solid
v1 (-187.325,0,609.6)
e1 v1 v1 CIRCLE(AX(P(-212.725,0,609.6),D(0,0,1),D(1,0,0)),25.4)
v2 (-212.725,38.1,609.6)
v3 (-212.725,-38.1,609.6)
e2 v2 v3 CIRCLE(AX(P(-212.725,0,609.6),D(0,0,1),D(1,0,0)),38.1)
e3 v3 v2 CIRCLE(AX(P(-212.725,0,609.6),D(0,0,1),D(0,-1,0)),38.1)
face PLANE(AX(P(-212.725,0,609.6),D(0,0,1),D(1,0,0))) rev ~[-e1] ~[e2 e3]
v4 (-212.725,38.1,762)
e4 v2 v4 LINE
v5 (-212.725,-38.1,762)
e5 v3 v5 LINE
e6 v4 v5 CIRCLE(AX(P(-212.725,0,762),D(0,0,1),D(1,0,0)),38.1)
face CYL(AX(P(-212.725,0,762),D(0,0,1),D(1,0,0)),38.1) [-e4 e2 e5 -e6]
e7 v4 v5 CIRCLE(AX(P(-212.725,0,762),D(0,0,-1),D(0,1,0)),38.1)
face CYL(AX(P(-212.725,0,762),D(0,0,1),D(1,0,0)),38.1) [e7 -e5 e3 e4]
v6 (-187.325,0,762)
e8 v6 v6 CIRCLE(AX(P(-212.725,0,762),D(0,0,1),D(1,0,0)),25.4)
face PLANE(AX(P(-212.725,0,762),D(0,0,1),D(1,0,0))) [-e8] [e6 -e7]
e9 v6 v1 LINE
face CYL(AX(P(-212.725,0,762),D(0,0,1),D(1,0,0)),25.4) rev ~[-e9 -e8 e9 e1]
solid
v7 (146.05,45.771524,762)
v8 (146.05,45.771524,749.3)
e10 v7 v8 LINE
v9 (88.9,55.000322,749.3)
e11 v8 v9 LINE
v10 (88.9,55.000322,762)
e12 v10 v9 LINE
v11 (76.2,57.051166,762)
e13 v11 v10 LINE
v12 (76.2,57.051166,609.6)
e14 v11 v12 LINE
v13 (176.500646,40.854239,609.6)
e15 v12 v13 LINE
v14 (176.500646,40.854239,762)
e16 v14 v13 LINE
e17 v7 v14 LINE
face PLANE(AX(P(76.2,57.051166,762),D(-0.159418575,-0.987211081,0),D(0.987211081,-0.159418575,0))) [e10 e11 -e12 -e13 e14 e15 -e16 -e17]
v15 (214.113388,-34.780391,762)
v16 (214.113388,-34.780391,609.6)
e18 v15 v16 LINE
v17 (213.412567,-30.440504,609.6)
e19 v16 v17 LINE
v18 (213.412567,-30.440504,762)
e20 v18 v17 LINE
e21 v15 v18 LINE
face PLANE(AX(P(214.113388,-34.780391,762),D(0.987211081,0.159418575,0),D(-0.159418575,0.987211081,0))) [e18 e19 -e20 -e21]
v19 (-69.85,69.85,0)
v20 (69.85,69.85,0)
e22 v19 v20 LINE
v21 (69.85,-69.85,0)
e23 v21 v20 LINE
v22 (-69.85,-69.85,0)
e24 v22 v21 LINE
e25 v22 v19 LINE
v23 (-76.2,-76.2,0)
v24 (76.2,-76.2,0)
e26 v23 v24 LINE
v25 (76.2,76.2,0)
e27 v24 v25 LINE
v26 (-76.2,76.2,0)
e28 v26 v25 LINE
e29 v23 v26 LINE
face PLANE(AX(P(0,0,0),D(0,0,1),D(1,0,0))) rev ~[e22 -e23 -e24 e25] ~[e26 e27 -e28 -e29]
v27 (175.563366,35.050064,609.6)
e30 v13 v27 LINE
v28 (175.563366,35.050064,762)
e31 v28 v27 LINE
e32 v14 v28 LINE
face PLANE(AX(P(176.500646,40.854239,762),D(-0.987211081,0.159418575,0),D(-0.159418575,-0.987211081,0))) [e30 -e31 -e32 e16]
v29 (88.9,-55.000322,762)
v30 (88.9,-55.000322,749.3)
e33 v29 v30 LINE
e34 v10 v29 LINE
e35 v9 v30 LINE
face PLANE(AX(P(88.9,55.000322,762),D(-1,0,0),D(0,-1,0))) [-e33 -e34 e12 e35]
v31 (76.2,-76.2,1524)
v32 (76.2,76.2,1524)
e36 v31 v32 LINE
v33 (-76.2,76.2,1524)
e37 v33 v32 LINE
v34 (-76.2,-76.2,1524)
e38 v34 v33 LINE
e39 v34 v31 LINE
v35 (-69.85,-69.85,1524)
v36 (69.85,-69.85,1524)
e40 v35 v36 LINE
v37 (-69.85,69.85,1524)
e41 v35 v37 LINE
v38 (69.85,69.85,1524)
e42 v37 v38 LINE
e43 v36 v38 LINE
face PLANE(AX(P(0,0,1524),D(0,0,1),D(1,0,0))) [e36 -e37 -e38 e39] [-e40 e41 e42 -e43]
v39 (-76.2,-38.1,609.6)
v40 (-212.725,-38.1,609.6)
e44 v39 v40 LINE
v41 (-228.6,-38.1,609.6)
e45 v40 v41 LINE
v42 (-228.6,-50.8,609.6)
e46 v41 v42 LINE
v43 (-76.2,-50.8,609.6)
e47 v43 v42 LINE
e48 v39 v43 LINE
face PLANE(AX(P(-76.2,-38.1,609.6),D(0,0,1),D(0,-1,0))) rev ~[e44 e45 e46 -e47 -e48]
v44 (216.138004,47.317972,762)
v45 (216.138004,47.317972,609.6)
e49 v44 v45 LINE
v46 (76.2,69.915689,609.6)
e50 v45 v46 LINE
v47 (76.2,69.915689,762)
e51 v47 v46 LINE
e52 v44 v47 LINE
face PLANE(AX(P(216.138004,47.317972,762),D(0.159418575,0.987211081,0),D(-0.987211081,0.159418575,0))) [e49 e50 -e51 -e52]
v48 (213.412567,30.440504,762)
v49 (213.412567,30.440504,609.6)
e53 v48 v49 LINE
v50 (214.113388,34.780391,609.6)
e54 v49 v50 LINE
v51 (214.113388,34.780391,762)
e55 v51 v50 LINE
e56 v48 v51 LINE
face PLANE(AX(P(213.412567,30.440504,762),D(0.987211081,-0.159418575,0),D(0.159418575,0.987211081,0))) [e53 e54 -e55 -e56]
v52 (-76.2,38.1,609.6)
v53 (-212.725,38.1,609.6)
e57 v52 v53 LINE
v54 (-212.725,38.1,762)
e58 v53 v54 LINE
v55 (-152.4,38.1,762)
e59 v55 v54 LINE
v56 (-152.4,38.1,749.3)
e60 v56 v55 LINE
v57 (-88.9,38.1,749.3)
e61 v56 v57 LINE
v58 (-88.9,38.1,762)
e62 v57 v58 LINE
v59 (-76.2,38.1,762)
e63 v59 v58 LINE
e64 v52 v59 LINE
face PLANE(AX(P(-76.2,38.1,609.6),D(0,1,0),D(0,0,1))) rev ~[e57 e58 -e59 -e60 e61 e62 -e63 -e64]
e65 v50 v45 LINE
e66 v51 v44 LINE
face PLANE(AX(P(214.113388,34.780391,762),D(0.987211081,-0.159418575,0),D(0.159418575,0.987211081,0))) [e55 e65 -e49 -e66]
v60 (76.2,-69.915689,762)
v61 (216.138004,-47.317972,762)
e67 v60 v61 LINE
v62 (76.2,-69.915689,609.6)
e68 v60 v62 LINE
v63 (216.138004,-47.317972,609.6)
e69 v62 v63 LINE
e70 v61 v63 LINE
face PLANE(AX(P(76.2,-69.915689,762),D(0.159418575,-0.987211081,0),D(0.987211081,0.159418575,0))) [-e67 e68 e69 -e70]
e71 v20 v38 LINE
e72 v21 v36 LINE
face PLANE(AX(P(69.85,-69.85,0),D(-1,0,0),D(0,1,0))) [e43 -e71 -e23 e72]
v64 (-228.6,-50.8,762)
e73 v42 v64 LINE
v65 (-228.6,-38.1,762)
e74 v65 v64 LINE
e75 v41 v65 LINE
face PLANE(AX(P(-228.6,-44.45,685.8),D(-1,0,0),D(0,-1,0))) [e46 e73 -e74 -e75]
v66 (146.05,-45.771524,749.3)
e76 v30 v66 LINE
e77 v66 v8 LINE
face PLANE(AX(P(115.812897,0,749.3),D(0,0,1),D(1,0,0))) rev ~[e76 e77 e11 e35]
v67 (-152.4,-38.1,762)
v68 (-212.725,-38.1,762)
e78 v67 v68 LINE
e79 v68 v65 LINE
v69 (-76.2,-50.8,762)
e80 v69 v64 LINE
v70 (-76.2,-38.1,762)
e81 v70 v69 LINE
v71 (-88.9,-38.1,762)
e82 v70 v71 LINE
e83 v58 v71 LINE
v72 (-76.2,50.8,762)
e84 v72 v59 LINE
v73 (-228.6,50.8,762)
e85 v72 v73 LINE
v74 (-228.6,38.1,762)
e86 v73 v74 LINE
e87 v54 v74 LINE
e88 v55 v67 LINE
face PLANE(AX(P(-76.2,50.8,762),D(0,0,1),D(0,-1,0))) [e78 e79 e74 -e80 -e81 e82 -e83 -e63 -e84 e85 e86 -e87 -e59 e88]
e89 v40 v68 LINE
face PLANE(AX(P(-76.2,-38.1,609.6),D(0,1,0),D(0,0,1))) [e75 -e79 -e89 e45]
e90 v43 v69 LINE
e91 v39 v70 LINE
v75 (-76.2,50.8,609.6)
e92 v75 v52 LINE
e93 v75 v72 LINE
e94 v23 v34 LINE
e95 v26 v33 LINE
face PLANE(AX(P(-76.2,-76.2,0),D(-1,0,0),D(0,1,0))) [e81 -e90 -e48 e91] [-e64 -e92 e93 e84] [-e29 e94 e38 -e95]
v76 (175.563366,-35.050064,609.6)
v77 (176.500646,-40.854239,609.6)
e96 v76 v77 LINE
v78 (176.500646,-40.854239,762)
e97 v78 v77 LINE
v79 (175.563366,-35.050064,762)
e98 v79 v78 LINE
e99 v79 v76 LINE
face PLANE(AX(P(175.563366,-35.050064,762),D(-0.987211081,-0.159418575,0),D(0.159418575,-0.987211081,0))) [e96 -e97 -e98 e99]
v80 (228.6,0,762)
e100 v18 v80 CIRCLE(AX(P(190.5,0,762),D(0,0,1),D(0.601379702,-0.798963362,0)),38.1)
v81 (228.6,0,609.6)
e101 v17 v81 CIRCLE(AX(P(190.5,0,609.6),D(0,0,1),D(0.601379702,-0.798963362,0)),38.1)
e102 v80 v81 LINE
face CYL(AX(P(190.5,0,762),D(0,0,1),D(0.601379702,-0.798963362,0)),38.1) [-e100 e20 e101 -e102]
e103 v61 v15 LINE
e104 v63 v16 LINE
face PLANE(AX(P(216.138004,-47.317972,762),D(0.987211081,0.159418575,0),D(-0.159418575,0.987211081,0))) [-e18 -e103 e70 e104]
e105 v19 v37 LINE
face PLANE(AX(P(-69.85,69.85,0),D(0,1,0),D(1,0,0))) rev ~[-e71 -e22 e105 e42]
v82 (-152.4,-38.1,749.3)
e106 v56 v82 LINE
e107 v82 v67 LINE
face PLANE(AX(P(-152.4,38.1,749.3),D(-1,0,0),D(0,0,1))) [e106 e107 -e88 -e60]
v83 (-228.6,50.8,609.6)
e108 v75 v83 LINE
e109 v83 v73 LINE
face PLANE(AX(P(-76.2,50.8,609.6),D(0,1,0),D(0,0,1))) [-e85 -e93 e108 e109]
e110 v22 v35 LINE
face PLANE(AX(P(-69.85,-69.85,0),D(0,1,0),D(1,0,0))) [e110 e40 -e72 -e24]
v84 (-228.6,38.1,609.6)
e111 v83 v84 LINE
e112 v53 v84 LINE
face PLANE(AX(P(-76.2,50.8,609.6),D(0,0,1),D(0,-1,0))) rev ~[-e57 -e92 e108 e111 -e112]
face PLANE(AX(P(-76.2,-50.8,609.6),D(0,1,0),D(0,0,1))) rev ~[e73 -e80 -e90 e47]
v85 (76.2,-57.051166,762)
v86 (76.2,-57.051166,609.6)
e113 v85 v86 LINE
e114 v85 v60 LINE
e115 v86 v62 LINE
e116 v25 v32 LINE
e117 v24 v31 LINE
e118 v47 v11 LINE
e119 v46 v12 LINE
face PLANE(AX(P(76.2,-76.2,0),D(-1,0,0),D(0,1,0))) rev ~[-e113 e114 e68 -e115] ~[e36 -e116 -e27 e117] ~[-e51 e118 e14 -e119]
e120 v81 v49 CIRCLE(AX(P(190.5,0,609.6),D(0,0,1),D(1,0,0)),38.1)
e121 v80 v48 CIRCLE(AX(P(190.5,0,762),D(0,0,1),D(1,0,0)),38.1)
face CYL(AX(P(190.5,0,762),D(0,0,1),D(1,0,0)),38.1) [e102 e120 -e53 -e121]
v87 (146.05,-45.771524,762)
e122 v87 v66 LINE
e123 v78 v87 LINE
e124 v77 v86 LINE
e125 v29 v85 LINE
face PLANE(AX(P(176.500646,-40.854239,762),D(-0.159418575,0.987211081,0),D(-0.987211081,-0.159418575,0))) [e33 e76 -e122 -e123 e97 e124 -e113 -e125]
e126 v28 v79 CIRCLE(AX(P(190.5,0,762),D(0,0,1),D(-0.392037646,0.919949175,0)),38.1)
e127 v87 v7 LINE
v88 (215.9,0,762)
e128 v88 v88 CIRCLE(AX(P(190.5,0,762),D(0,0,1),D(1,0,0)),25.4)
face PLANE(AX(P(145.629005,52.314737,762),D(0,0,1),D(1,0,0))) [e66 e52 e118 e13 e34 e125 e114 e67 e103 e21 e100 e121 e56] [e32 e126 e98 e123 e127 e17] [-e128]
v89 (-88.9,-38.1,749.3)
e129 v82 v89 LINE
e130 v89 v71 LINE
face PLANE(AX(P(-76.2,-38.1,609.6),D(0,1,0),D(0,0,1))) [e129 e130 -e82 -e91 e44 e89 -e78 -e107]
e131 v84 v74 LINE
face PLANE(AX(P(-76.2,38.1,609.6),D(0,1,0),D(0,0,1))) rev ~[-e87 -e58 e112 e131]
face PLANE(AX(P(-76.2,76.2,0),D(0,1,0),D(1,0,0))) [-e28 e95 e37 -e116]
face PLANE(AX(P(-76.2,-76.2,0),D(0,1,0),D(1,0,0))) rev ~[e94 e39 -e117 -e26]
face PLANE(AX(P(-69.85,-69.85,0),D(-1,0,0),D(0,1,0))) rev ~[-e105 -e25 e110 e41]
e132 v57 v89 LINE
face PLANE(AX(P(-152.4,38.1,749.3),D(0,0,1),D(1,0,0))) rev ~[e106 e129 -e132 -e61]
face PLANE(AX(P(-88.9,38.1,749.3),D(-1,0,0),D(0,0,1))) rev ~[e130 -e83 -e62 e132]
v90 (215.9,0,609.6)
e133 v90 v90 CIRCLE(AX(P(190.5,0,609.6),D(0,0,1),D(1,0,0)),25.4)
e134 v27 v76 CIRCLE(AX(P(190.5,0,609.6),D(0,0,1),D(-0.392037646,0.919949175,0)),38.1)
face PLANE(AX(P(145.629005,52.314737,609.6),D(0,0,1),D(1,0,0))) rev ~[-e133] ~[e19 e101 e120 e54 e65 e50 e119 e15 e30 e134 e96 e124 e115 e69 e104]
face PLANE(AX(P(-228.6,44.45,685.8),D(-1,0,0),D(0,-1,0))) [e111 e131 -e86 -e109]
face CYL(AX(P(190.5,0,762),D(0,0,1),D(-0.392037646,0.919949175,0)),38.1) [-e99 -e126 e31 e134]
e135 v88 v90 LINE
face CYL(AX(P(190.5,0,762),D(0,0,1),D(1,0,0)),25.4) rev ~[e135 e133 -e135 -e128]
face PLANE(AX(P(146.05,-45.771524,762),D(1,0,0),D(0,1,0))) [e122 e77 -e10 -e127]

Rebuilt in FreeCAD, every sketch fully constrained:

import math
import FreeCAD as App
import Part
import Sketcher
Q = App.Units.Quantity

doc = App.newDocument("Part")
body = doc.addObject("PartDesign::Body", "Body")
body.AllowCompound = True

sketch1 = doc.addObject("Sketcher::SketchObject", "Sketch")
body.addObject(sketch1)
sketch1.AttachmentSupport = (doc.XY_Plane, [""])
sketch1.MapMode = "FlatFace"
sketch1.addGeometry([
    Part.LineSegment(App.Vector(-76, 76, 0), App.Vector(-76, -76, 0)),
    Part.LineSegment(App.Vector(-76, -76, 0), App.Vector(76, -76, 0)),
    Part.LineSegment(App.Vector(76, -76, 0), App.Vector(76, 76, 0)),
    Part.LineSegment(App.Vector(76, 76, 0), App.Vector(-76, 76, 0)),
    Part.LineSegment(App.Vector(70, -70, 0), App.Vector(-70, -70, 0)),
    Part.LineSegment(App.Vector(-70, -70, 0), App.Vector(-70, 70, 0)),
    Part.LineSegment(App.Vector(-70, 70, 0), App.Vector(70, 70, 0)),
    Part.LineSegment(App.Vector(70, 70, 0), App.Vector(70, -70, 0)),
], False)
sketch1.addConstraint([
    Sketcher.Constraint("Coincident", 0, 2, 1, 1),
    Sketcher.Constraint("Coincident", 1, 2, 2, 1),
    Sketcher.Constraint("Coincident", 2, 2, 3, 1),
    Sketcher.Constraint("Coincident", 3, 2, 0, 1),
    Sketcher.Constraint("Coincident", 4, 2, 5, 1),
    Sketcher.Constraint("Coincident", 5, 2, 6, 1),
    Sketcher.Constraint("Coincident", 6, 2, 7, 1),
    Sketcher.Constraint("Coincident", 7, 2, 4, 1),
    Sketcher.Constraint("Vertical", 0),
    Sketcher.Constraint("Horizontal", 1),
    Sketcher.Constraint("Vertical", 2),
    Sketcher.Constraint("Horizontal", 3),
    Sketcher.Constraint("Horizontal", 4),
    Sketcher.Constraint("Vertical", 5),
    Sketcher.Constraint("Horizontal", 6),
    Sketcher.Constraint("Vertical", 7),
    Sketcher.Constraint("Symmetric", 0, 2, 2, 2, -1, 1),
    Sketcher.Constraint("Symmetric", 4, 2, 6, 2, -1, 1),
    Sketcher.Constraint("Equal", 3, 0),
    Sketcher.Constraint("Equal", 6, 5),
    Sketcher.Constraint("DistanceX", 1, 1, 1, 2, Q("6 in")),
    Sketcher.Constraint("DistanceX", 4, 2, 4, 1, Q("5.5 in")),
])
pad1 = doc.addObject("PartDesign::Pad", "Pad")
body.addObject(pad1)
pad1.Profile = sketch1
pad1.Length = Q("60 in")

sketch2 = doc.addObject("Sketcher::SketchObject", "Sketch001")
body.addObject(sketch2)
sketch2.AttachmentSupport = (doc.YZ_Plane, [""])
sketch2.MapMode = "FlatFace"
sketch2.AttachmentOffset = App.Placement(App.Vector(0, 0, -3 * 25.4), App.Rotation())
sketch2.addGeometry([
    Part.LineSegment(App.Vector(51, 762, 0), App.Vector(51, 610, 0)),
    Part.LineSegment(App.Vector(51, 610, 0), App.Vector(38, 610, 0)),
    Part.LineSegment(App.Vector(38, 610, 0), App.Vector(38, 762, 0)),
    Part.LineSegment(App.Vector(38, 762, 0), App.Vector(51, 762, 0)),
    Part.LineSegment(App.Vector(-38, 762, 0), App.Vector(-38, 610, 0)),
    Part.LineSegment(App.Vector(-38, 610, 0), App.Vector(-51, 610, 0)),
    Part.LineSegment(App.Vector(-51, 610, 0), App.Vector(-51, 762, 0)),
    Part.LineSegment(App.Vector(-51, 762, 0), App.Vector(-38, 762, 0)),
], False)
sketch2.addConstraint([
    Sketcher.Constraint("Coincident", 0, 2, 1, 1),
    Sketcher.Constraint("Coincident", 1, 2, 2, 1),
    Sketcher.Constraint("Coincident", 2, 2, 3, 1),
    Sketcher.Constraint("Coincident", 3, 2, 0, 1),
    Sketcher.Constraint("Coincident", 4, 2, 5, 1),
    Sketcher.Constraint("Coincident", 5, 2, 6, 1),
    Sketcher.Constraint("Coincident", 6, 2, 7, 1),
    Sketcher.Constraint("Coincident", 7, 2, 4, 1),
    Sketcher.Constraint("Vertical", 0),
    Sketcher.Constraint("Horizontal", 1),
    Sketcher.Constraint("Vertical", 2),
    Sketcher.Constraint("Horizontal", 3),
    Sketcher.Constraint("Vertical", 4),
    Sketcher.Constraint("Horizontal", 5),
    Sketcher.Constraint("Vertical", 6),
    Sketcher.Constraint("Horizontal", 7),
    Sketcher.Constraint("Symmetric", 1, 2, 4, 2, -2),
    Sketcher.Constraint("Symmetric", 3, 2, 6, 2, -2),
    Sketcher.Constraint("DistanceY", 0, 2, 0, 1, Q("6 in")),
    Sketcher.Constraint("DistanceX", 1, 2, 1, 1, Q("0.5 in")),
    Sketcher.Constraint("DistanceX", -1, 1, 0, 2, Q("2 in")),
    Sketcher.Constraint("DistanceY", -1, 1, 0, 2, Q("24 in")),
])
pad2 = doc.addObject("PartDesign::Pad", "Pad001")
body.addObject(pad2)
pad2.Profile = sketch2
pad2.Length = Q("6 in")
pad2.Reversed = True

sketch3 = doc.addObject("Sketcher::SketchObject", "Sketch002")
body.addObject(sketch3)
sketch3.AttachmentSupport = (doc.XY_Plane, [""])
sketch3.MapMode = "FlatFace"
sketch3.AttachmentOffset = App.Placement(App.Vector(0, 0, 30 * 25.4), App.Rotation())
sketch3.addGeometry([
    Part.Circle(App.Vector(-213, 0, 0), App.Vector(0, 0, 1), 38),
    Part.Circle(App.Vector(-213, 0, 0), App.Vector(0, 0, 1), 25),
], False)
sketch3.addConstraint([
    Sketcher.Constraint("Coincident", 1, 3, 0, 3),
    Sketcher.Constraint("PointOnObject", 0, 3, -1),
    Sketcher.Constraint("Diameter", 0, Q("3 in")),
    Sketcher.Constraint("Diameter", 1, Q("2 in")),
    Sketcher.Constraint("DistanceX", 0, 3, -1, 1, Q("8.375 in")),
])
pad3 = doc.addObject("PartDesign::Pad", "Pad002")
body.addObject(pad3)
pad3.Profile = sketch3
pad3.Length = Q("6 in")
pad3.Reversed = True

sketch4 = doc.addObject("Sketcher::SketchObject", "Sketch003")
body.addObject(sketch4)
sketch4.AttachmentSupport = (doc.XZ_Plane, [""])
sketch4.MapMode = "FlatFace"
sketch4.AttachmentOffset = App.Placement(App.Vector(0, 0, -1.5 * 25.4), App.Rotation())
sketch4.addGeometry([
    Part.LineSegment(App.Vector(-152, 762, 0), App.Vector(-152, 749, 0)),
    Part.LineSegment(App.Vector(-152, 749, 0), App.Vector(-89, 749, 0)),
    Part.LineSegment(App.Vector(-89, 749, 0), App.Vector(-89, 762, 0)),
    Part.LineSegment(App.Vector(-89, 762, 0), App.Vector(-152, 762, 0)),
], False)
sketch4.addConstraint([
    Sketcher.Constraint("Coincident", 0, 2, 1, 1),
    Sketcher.Constraint("Coincident", 1, 2, 2, 1),
    Sketcher.Constraint("Coincident", 2, 2, 3, 1),
    Sketcher.Constraint("Coincident", 3, 2, 0, 1),
    Sketcher.Constraint("Vertical", 0),
    Sketcher.Constraint("Horizontal", 1),
    Sketcher.Constraint("Vertical", 2),
    Sketcher.Constraint("Horizontal", 3),
    Sketcher.Constraint("DistanceX", 1, 1, 1, 2, Q("2.5 in")),
    Sketcher.Constraint("DistanceY", 0, 2, 0, 1, Q("0.5 in")),
    Sketcher.Constraint("DistanceX", 0, 2, -1, 1, Q("6 in")),
    Sketcher.Constraint("DistanceY", -1, 1, 2, 2, Q("30 in")),
])
pad4 = doc.addObject("PartDesign::Pad", "Pad003")
body.addObject(pad4)
pad4.Profile = sketch4
pad4.Type = "UpToLast"

sketch5 = doc.addObject("Sketcher::SketchObject", "Sketch004")
body.addObject(sketch5)
sketch5.AttachmentSupport = (doc.XY_Plane, [""])
sketch5.MapMode = "FlatFace"
sketch5.AttachmentOffset = App.Placement(App.Vector(0, 0, 30 * 25.4), App.Rotation())
sketch5.addGeometry([
    Part.LineSegment(App.Vector(76.2, 69.9, 0), App.Vector(76.2, 57.1, 0)),
    Part.LineSegment(App.Vector(76.2, 57.1, 0), App.Vector(176.5, 40.9, 0)),
    Part.LineSegment(App.Vector(176.5, 40.9, 0), App.Vector(175.6, 35.1, 0)),
    Part.ArcOfCircle(Part.Circle(App.Vector(190.5, 0, 0), App.Vector(0, 0, 1), 38.1), math.radians(113), math.radians(247)),
    Part.LineSegment(App.Vector(175.6, -35.1, 0), App.Vector(176.5, -40.9, 0)),
    Part.LineSegment(App.Vector(176.5, -40.9, 0), App.Vector(76.2, -57.1, 0)),
    Part.LineSegment(App.Vector(76.2, -57.1, 0), App.Vector(76.2, -69.9, 0)),
    Part.LineSegment(App.Vector(76.2, -69.9, 0), App.Vector(216.1, -47.3, 0)),
    Part.LineSegment(App.Vector(216.1, -47.3, 0), App.Vector(214.1, -34.8, 0)),
    Part.LineSegment(App.Vector(214.1, -34.8, 0), App.Vector(213.4, -30.4, 0)),
    Part.ArcOfCircle(Part.Circle(App.Vector(190.5, 0, 0), App.Vector(0, 0, 1), 38.1), math.radians(-53), math.radians(0)),
    Part.ArcOfCircle(Part.Circle(App.Vector(190.5, 0, 0), App.Vector(0, 0, 1), 38.1), math.radians(0), math.radians(53)),
    Part.LineSegment(App.Vector(213.4, 30.4, 0), App.Vector(214.1, 34.8, 0)),
    Part.LineSegment(App.Vector(214.1, 34.8, 0), App.Vector(216.1, 47.3, 0)),
    Part.LineSegment(App.Vector(216.1, 47.3, 0), App.Vector(76.2, 69.9, 0)),
    Part.Circle(App.Vector(190.5, 0, 0), App.Vector(0, 0, 1), 25.4),
], False)
sketch5.addConstraint([
    Sketcher.Constraint("Coincident", 0, 2, 1, 1),
    Sketcher.Constraint("Coincident", 1, 2, 2, 1),
    Sketcher.Constraint("Coincident", 2, 2, 3, 1),
    Sketcher.Constraint("Coincident", 3, 2, 4, 1),
    Sketcher.Constraint("Coincident", 4, 2, 5, 1),
    Sketcher.Constraint("Coincident", 5, 2, 6, 1),
    Sketcher.Constraint("Coincident", 6, 2, 7, 1),
    Sketcher.Constraint("Coincident", 7, 2, 8, 1),
    Sketcher.Constraint("Coincident", 8, 2, 9, 1),
    Sketcher.Constraint("Coincident", 9, 2, 10, 1),
    Sketcher.Constraint("Tangent", 10, 2, 11, 1),
    Sketcher.Constraint("Coincident", 11, 2, 12, 1),
    Sketcher.Constraint("Coincident", 12, 2, 13, 1),
    Sketcher.Constraint("Coincident", 13, 2, 14, 1),
    Sketcher.Constraint("Coincident", 14, 2, 0, 1),
    Sketcher.Constraint("Vertical", 0),
    Sketcher.Constraint("Vertical", 6),
    Sketcher.Constraint("Coincident", 10, 3, 3, 3),
    Sketcher.Constraint("Coincident", 15, 3, 3, 3),
    Sketcher.Constraint("Equal", 3, 10),
    Sketcher.Constraint("Equal", 10, 11),
    Sketcher.Constraint("Symmetric", 2, 2, 3, 2, -1),
    Sketcher.Constraint("Symmetric", 1, 2, 4, 2, -1),
    Sketcher.Constraint("Symmetric", 0, 2, 5, 2, -1),
    Sketcher.Constraint("Symmetric", 8, 2, 12, 2, -1),
    Sketcher.Constraint("Symmetric", 7, 2, 13, 2, -1),
    Sketcher.Constraint("PointOnObject", 10, 2, -1),
    Sketcher.Constraint("Perpendicular", 1, 2),
    Sketcher.Constraint("Parallel", 5, 7),
    Sketcher.Constraint("Perpendicular", 7, 8),
    Sketcher.Constraint("Parallel", 8, 9),
    Sketcher.Constraint("Parallel", 2, 12),
    Sketcher.Constraint("Perpendicular", 13, 14),
    Sketcher.Constraint("Diameter", 15, Q("2 in")),
    Sketcher.Constraint("Radius", 3, Q("1.5 in")),
    Sketcher.Constraint("Distance", 1, Q("4 in")),
    Sketcher.Constraint("DistanceX", -1, 1, 0, 2, Q("3 in")),
    Sketcher.Constraint("DistanceX", -1, 1, 10, 2, Q("9 in")),
    Sketcher.Constraint("Distance", 8, Q("0.5 in")),
    Sketcher.Constraint("Distance", 9, Q("4.396108 mm")),
    Sketcher.Constraint("DistanceY", 0, 2, 0, 1, Q("12.864523 mm")),
    Sketcher.Constraint("DistanceY", -1, 1, 1, 2, Q("40.854239 mm")),
    Sketcher.Constraint("DistanceY", 6, 2, -1, 1, Q("69.915689 mm")),
])
pad5 = doc.addObject("PartDesign::Pad", "Pad004")
body.addObject(pad5)
pad5.Profile = sketch5
pad5.Length = Q("6 in")
pad5.Reversed = True

sketch6 = doc.addObject("Sketcher::SketchObject", "Sketch005")
body.addObject(sketch6)
sketch6.AttachmentSupport = (doc.XY_Plane, [""])
sketch6.MapMode = "FlatFace"
sketch6.AttachmentOffset = App.Placement(App.Vector(0, 0, 30 * 25.4), App.Rotation())
sketch6.addGeometry([
    Part.LineSegment(App.Vector(89, 55, 0), App.Vector(89, -55, 0)),
    Part.LineSegment(App.Vector(89, -55, 0), App.Vector(146, -46, 0)),
    Part.LineSegment(App.Vector(146, -46, 0), App.Vector(146, 46, 0)),
    Part.LineSegment(App.Vector(146, 46, 0), App.Vector(89, 55, 0)),
], False)
sketch6.addConstraint([
    Sketcher.Constraint("Coincident", 0, 2, 1, 1),
    Sketcher.Constraint("Coincident", 1, 2, 2, 1),
    Sketcher.Constraint("Coincident", 2, 2, 3, 1),
    Sketcher.Constraint("Coincident", 3, 2, 0, 1),
    Sketcher.Constraint("Vertical", 0),
    Sketcher.Constraint("Vertical", 2),
    Sketcher.Constraint("Equal", 1, 3),
    Sketcher.Constraint("DistanceX", -1, 1, 0, 2, Q("3.5 in")),
    Sketcher.Constraint("DistanceX", -1, 1, 1, 2, Q("5.75 in")),
    Sketcher.Constraint("DistanceY", 0, 2, 0, 1, Q("110.000644 mm")),
    Sketcher.Constraint("DistanceY", 2, 1, 2, 2, Q("91.543048 mm")),
    Sketcher.Constraint("DistanceY", 0, 2, -1, 1, Q("55.000322 mm")),
])
pad6 = doc.addObject("PartDesign::Pad", "Pad005")
body.addObject(pad6)
pad6.Profile = sketch6
pad6.Length = Q("0.5 in")
pad6.Reversed = True

doc.recompute()
